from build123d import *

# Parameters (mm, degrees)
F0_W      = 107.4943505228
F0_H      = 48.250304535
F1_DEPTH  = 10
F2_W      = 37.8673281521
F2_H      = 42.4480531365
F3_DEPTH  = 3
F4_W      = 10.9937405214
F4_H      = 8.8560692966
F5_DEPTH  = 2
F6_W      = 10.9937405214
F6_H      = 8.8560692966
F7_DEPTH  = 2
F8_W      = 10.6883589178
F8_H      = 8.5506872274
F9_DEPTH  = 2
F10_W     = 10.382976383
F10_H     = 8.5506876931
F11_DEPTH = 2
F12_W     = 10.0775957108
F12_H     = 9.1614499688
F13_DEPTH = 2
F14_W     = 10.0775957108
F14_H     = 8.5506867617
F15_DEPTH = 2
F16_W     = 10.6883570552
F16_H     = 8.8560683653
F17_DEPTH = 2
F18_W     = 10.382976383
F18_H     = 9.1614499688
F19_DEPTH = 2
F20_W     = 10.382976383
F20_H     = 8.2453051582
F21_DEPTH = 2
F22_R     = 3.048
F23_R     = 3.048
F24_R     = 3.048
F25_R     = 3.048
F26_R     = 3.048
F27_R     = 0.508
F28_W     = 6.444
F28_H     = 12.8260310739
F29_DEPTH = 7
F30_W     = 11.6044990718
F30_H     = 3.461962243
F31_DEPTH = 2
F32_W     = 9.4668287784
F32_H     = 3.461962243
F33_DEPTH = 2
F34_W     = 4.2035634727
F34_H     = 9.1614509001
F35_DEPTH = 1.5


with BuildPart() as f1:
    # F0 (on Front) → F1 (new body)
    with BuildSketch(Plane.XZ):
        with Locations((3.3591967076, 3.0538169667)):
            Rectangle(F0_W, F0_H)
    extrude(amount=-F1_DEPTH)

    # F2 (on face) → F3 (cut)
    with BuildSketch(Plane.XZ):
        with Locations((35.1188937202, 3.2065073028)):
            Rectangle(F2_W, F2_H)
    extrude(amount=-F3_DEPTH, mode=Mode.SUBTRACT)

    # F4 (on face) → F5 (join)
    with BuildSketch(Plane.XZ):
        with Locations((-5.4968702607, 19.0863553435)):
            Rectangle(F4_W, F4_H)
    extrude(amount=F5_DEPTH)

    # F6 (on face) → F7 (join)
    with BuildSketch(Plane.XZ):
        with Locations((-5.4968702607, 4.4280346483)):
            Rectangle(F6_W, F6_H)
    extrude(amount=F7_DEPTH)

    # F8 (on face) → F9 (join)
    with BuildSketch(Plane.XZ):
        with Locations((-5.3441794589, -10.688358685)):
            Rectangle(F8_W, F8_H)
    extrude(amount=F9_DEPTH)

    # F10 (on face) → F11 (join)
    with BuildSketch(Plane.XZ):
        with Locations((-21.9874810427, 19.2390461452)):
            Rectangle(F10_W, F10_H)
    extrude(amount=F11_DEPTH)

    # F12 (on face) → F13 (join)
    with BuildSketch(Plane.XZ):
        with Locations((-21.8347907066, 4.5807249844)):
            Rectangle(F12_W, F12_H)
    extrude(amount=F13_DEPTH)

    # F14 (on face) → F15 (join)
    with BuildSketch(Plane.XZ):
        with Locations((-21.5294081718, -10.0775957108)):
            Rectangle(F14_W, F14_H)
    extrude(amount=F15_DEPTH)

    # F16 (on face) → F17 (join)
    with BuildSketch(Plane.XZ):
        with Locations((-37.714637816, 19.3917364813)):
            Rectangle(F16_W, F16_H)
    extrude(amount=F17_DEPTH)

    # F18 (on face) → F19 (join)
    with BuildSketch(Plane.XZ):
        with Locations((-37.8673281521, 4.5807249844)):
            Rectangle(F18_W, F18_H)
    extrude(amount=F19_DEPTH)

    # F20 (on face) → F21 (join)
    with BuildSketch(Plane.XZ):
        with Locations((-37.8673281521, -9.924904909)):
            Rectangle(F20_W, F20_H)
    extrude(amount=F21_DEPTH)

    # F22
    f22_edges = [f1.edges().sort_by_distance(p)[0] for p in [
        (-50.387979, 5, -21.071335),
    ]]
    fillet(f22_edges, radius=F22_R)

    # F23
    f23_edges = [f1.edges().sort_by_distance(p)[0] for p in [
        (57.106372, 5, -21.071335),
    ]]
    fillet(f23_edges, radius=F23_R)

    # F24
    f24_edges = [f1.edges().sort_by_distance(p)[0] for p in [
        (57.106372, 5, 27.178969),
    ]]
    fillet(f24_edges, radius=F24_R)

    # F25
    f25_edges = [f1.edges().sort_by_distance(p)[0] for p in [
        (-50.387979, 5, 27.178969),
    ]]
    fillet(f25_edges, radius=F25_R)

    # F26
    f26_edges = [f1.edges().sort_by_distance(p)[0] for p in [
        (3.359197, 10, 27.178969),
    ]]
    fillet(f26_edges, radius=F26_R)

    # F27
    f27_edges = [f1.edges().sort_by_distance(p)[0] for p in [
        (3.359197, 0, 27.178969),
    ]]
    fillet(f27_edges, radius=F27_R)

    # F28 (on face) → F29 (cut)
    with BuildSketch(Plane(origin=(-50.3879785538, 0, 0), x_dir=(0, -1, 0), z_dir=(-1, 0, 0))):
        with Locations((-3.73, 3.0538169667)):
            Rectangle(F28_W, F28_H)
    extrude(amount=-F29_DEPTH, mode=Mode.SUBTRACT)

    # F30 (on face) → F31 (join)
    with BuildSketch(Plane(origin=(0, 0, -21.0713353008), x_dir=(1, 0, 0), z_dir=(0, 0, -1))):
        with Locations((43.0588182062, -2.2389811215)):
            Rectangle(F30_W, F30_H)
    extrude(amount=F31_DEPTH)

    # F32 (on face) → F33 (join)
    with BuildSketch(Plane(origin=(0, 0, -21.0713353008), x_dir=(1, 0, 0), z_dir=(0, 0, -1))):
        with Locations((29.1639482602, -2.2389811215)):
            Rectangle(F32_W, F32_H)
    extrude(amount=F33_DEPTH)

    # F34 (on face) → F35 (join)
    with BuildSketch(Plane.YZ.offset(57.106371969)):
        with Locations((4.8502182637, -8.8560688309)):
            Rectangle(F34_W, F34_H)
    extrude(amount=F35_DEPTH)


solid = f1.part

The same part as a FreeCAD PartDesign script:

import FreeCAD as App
import Part
import Sketcher
Q = App.Units.Quantity


def edges_at(feature, points):
    """Names of the edges that pass closest to the given points."""
    edges = feature.Shape.Edges
    near = lambda p: min(range(len(edges)), key=lambda i: edges[i].distToShape(Part.Vertex(*p))[0])
    return sorted({f"Edge{near(p) + 1}" for p in points})


def add_polygon(sketch, points):
    """Adds a closed chain of lines whose ends are joined by coincident constraints."""
    first, n = sketch.GeometryCount, len(points)
    for a, b in zip(points, points[1:] + points[:1]):
        sketch.addGeometry(Part.LineSegment(App.Vector(*a, 0), App.Vector(*b, 0)), False)
    for i in range(n):
        sketch.addConstraint(Sketcher.Constraint("Coincident", first + i, 2, first + (i + 1) % n, 1))

doc = App.newDocument("Part")
body = doc.addObject("PartDesign::Body", "Body")

# Sketch on XZ plane
sketch1 = doc.addObject("Sketcher::SketchObject", "Sketch")
body.addObject(sketch1)
sketch1.AttachmentSupport = (doc.XZ_Plane, [""])
sketch1.MapMode = "FlatFace"
add_polygon(sketch1, [(-50, 27), (-50, -21), (57, -21), (57, 27)])  # lines 0-3
sketch1.addConstraint([
    Sketcher.Constraint("Vertical", 0),
    Sketcher.Constraint("Horizontal", 1),
    Sketcher.Constraint("Vertical", 2),
    Sketcher.Constraint("Horizontal", 3),
    Sketcher.Constraint("DistanceX", 1, 1, 1, 2, Q("107.494351 mm")),
    Sketcher.Constraint("DistanceY", 0, 2, 0, 1, Q("48.250305 mm")),
    Sketcher.Constraint("DistanceX", 0, 2, -1, 1, Q("50.387979 mm")),
    Sketcher.Constraint("DistanceY", -1, 1, 2, 2, Q("27.178969 mm")),
])
pad1 = doc.addObject("PartDesign::Pad", "Pad")
body.addObject(pad1)
pad1.Profile = sketch1
pad1.Length = 10
pad1.Reversed = True

# Sketch on XZ plane
sketch2 = doc.addObject("Sketcher::SketchObject", "Sketch001")
body.addObject(sketch2)
sketch2.AttachmentSupport = (doc.XZ_Plane, [""])
sketch2.MapMode = "FlatFace"
add_polygon(sketch2, [(16, 24), (16, -18), (54, -18), (54, 24)])  # lines 0-3
sketch2.addConstraint([
    Sketcher.Constraint("Vertical", 0),
    Sketcher.Constraint("Horizontal", 1),
    Sketcher.Constraint("Vertical", 2),
    Sketcher.Constraint("Horizontal", 3),
    Sketcher.Constraint("DistanceX", 1, 1, 1, 2, Q("37.867328 mm")),
    Sketcher.Constraint("DistanceY", 0, 2, 0, 1, Q("42.448053 mm")),
    Sketcher.Constraint("DistanceX", -1, 1, 0, 2, Q("16.18523 mm")),
    Sketcher.Constraint("DistanceY", 0, 2, -1, 1, Q("18.017519 mm")),
])
pocket1 = doc.addObject("PartDesign::Pocket", "Pocket")
body.addObject(pocket1)
pocket1.Profile = sketch2
pocket1.Length = 3

# Sketch on XZ plane
sketch3 = doc.addObject("Sketcher::SketchObject", "Sketch002")
body.addObject(sketch3)
sketch3.AttachmentSupport = (doc.XZ_Plane, [""])
sketch3.MapMode = "FlatFace"
add_polygon(sketch3, [(-11, 24), (-11, 15), (0, 15), (0, 24)])  # lines 0-3
sketch3.addConstraint([
    Sketcher.Constraint("Vertical", 0),
    Sketcher.Constraint("Horizontal", 1),
    Sketcher.Constraint("Vertical", 2),
    Sketcher.Constraint("Horizontal", 3),
    Sketcher.Constraint("PointOnObject", 1, 2, -2),
    Sketcher.Constraint("DistanceX", 1, 1, 1, 2, Q("10.993741 mm")),
    Sketcher.Constraint("DistanceY", 0, 2, 0, 1, Q("8.856069 mm")),
    Sketcher.Constraint("DistanceY", -1, 1, 0, 2, Q("14.658321 mm")),
])
pad2 = doc.addObject("PartDesign::Pad", "Pad001")
body.addObject(pad2)
pad2.Profile = sketch3
pad2.Length = 2

# Sketch on XZ plane
sketch4 = doc.addObject("Sketcher::SketchObject", "Sketch003")
body.addObject(sketch4)
sketch4.AttachmentSupport = (doc.XZ_Plane, [""])
sketch4.MapMode = "FlatFace"
add_polygon(sketch4, [(-11, 9), (-11, 0), (0, 0), (0, 9)])  # lines 0-3
sketch4.addConstraint([
    Sketcher.Constraint("Vertical", 0),
    Sketcher.Constraint("Horizontal", 1),
    Sketcher.Constraint("Vertical", 2),
    Sketcher.Constraint("Horizontal", 3),
    Sketcher.Constraint("Coincident", 1, 2, -1, 1),
    Sketcher.Constraint("DistanceX", 1, 1, 1, 2, Q("10.993741 mm")),
    Sketcher.Constraint("DistanceY", 0, 2, 0, 1, Q("8.856069 mm")),
])
pad3 = doc.addObject("PartDesign::Pad", "Pad002")
body.addObject(pad3)
pad3.Profile = sketch4
pad3.Length = 2

# Sketch on XZ plane
sketch5 = doc.addObject("Sketcher::SketchObject", "Sketch004")
body.addObject(sketch5)
sketch5.AttachmentSupport = (doc.XZ_Plane, [""])
sketch5.MapMode = "FlatFace"
add_polygon(sketch5, [(-11, -6), (-11, -15), (0, -15), (0, -6)])  # lines 0-3
sketch5.addConstraint([
    Sketcher.Constraint("Vertical", 0),
    Sketcher.Constraint("Horizontal", 1),
    Sketcher.Constraint("Vertical", 2),
    Sketcher.Constraint("Horizontal", 3),
    Sketcher.Constraint("PointOnObject", 1, 2, -2),
    Sketcher.Constraint("DistanceX", 1, 1, 1, 2, Q("10.688359 mm")),
    Sketcher.Constraint("DistanceY", 0, 2, 0, 1, Q("8.550687 mm")),
    Sketcher.Constraint("DistanceY", 0, 2, -1, 1, Q("14.963702 mm")),
])
pad4 = doc.addObject("PartDesign::Pad", "Pad003")
body.addObject(pad4)
pad4.Profile = sketch5
pad4.Length = 2

# Sketch on XZ plane
sketch6 = doc.addObject("Sketcher::SketchObject", "Sketch005")
body.addObject(sketch6)
sketch6.AttachmentSupport = (doc.XZ_Plane, [""])
sketch6.MapMode = "FlatFace"
add_polygon(sketch6, [(-27, 24), (-27, 15), (-17, 15), (-17, 24)])  # lines 0-3
sketch6.addConstraint([
    Sketcher.Constraint("Vertical", 0),
    Sketcher.Constraint("Horizontal", 1),
    Sketcher.Constraint("Vertical", 2),
    Sketcher.Constraint("Horizontal", 3),
    Sketcher.Constraint("DistanceX", 1, 1, 1, 2, Q("10.382976 mm")),
    Sketcher.Constraint("DistanceY", 0, 2, 0, 1, Q("8.550688 mm")),
    Sketcher.Constraint("DistanceX", 0, 2, -1, 1, Q("27.178969 mm")),
    Sketcher.Constraint("DistanceY", -1, 1, 2, 2, Q("23.51439 mm")),
])
pad5 = doc.addObject("PartDesign::Pad", "Pad004")
body.addObject(pad5)
pad5.Profile = sketch6
pad5.Length = 2

# Sketch on XZ plane
sketch7 = doc.addObject("Sketcher::SketchObject", "Sketch006")
body.addObject(sketch7)
sketch7.AttachmentSupport = (doc.XZ_Plane, [""])
sketch7.MapMode = "FlatFace"
add_polygon(sketch7, [(-27, 9), (-27, 0), (-17, 0), (-17, 9)])  # lines 0-3
sketch7.addConstraint([
    Sketcher.Constraint("Vertical", 0),
    Sketcher.Constraint("Horizontal", 1),
    Sketcher.Constraint("Vertical", 2),
    Sketcher.Constraint("Horizontal", 3),
    Sketcher.Constraint("PointOnObject", 0, 2, -1),
    Sketcher.Constraint("DistanceY", 0, 2, 0, 1, Q("9.16145 mm")),
    Sketcher.Constraint("DistanceX", 1, 1, 1, 2, Q("10.077596 mm")),
    Sketcher.Constraint("DistanceX", 0, 2, -1, 1, Q("26.873589 mm")),
])
pad6 = doc.addObject("PartDesign::Pad", "Pad005")
body.addObject(pad6)
pad6.Profile = sketch7
pad6.Length = 2

# Sketch on XZ plane
sketch8 = doc.addObject("Sketcher::SketchObject", "Sketch007")
body.addObject(sketch8)
sketch8.AttachmentSupport = (doc.XZ_Plane, [""])
sketch8.MapMode = "FlatFace"
add_polygon(sketch8, [(-27, -6), (-27, -14), (-16, -14), (-16, -6)])  # lines 0-3
sketch8.addConstraint([
    Sketcher.Constraint("Vertical", 0),
    Sketcher.Constraint("Horizontal", 1),
    Sketcher.Constraint("Vertical", 2),
    Sketcher.Constraint("Horizontal", 3),
    Sketcher.Constraint("DistanceX", 1, 1, 1, 2, Q("10.077596 mm")),
    Sketcher.Constraint("DistanceY", 0, 2, 0, 1, Q("8.550687 mm")),
    Sketcher.Constraint("DistanceY", 0, 2, -1, 1, Q("14.352939 mm")),
    Sketcher.Constraint("DistanceX", 1, 2, -1, 1, Q("16.49061 mm")),
])
pad7 = doc.addObject("PartDesign::Pad", "Pad006")
body.addObject(pad7)
pad7.Profile = sketch8
pad7.Length = 2

# Sketch on XZ plane
sketch9 = doc.addObject("Sketcher::SketchObject", "Sketch008")
body.addObject(sketch9)
sketch9.AttachmentSupport = (doc.XZ_Plane, [""])
sketch9.MapMode = "FlatFace"
add_polygon(sketch9, [(-43, 24), (-43, 15), (-32, 15), (-32, 24)])  # lines 0-3
sketch9.addConstraint([
    Sketcher.Constraint("Vertical", 0),
    Sketcher.Constraint("Horizontal", 1),
    Sketcher.Constraint("Vertical", 2),
    Sketcher.Constraint("Horizontal", 3),
    Sketcher.Constraint("DistanceY", 0, 2, 0, 1, Q("8.856068 mm")),
    Sketcher.Constraint("DistanceX", 1, 1, 1, 2, Q("10.688357 mm")),
    Sketcher.Constraint("DistanceX", 1, 2, -1, 1, Q("32.370459 mm")),
    Sketcher.Constraint("DistanceY", -1, 1, 2, 2, Q("23.819771 mm")),
])
pad8 = doc.addObject("PartDesign::Pad", "Pad007")
body.addObject(pad8)
pad8.Profile = sketch9
pad8.Length = 2

# Sketch on XZ plane
sketch10 = doc.addObject("Sketcher::SketchObject", "Sketch009")
body.addObject(sketch10)
sketch10.AttachmentSupport = (doc.XZ_Plane, [""])
sketch10.MapMode = "FlatFace"
add_polygon(sketch10, [(-43, 9), (-43, 0), (-33, 0), (-33, 9)])  # lines 0-3
sketch10.addConstraint([
    Sketcher.Constraint("Vertical", 0),
    Sketcher.Constraint("Horizontal", 1),
    Sketcher.Constraint("Vertical", 2),
    Sketcher.Constraint("Horizontal", 3),
    Sketcher.Constraint("PointOnObject", 0, 2, -1),
    Sketcher.Constraint("DistanceY", 0, 2, 0, 1, Q("9.16145 mm")),
    Sketcher.Constraint("DistanceX", 1, 1, 1, 2, Q("10.382976 mm")),
    Sketcher.Constraint("DistanceX", 1, 2, -1, 1, Q("32.67584 mm")),
])
pad9 = doc.addObject("PartDesign::Pad", "Pad008")
body.addObject(pad9)
pad9.Profile = sketch10
pad9.Length = 2

# Sketch on XZ plane
sketch11 = doc.addObject("Sketcher::SketchObject", "Sketch010")
body.addObject(sketch11)
sketch11.AttachmentSupport = (doc.XZ_Plane, [""])
sketch11.MapMode = "FlatFace"
add_polygon(sketch11, [(-43, -6), (-43, -14), (-33, -14), (-33, -6)])  # lines 0-3
sketch11.addConstraint([
    Sketcher.Constraint("Vertical", 0),
    Sketcher.Constraint("Horizontal", 1),
    Sketcher.Constraint("Vertical", 2),
    Sketcher.Constraint("Horizontal", 3),
    Sketcher.Constraint("DistanceX", 1, 1, 1, 2, Q("10.382976 mm")),
    Sketcher.Constraint("DistanceY", 0, 2, 0, 1, Q("8.245305 mm")),
    Sketcher.Constraint("DistanceX", 1, 2, -1, 1, Q("32.67584 mm")),
    Sketcher.Constraint("DistanceY", 0, 2, -1, 1, Q("14.047557 mm")),
])
pad10 = doc.addObject("PartDesign::Pad", "Pad009")
body.addObject(pad10)
pad10.Profile = sketch11
pad10.Length = 2
doc.recompute()

fillet = doc.addObject("PartDesign::Fillet", "Fillet")
body.addObject(fillet)
fillet.Base = (pad10, edges_at(pad10, [(-50.388, 5, -21.071)]))
fillet.Radius = 3.048
doc.recompute()

fillet2 = doc.addObject("PartDesign::Fillet", "Fillet001")
body.addObject(fillet2)
fillet2.Base = (fillet, edges_at(fillet, [(57.106, 5, -21.071)]))
fillet2.Radius = 3.048
doc.recompute()

fillet3 = doc.addObject("PartDesign::Fillet", "Fillet002")
body.addObject(fillet3)
fillet3.Base = (fillet2, edges_at(fillet2, [(57.106, 5, 27.179)]))
fillet3.Radius = 3.048
doc.recompute()

fillet4 = doc.addObject("PartDesign::Fillet", "Fillet003")
body.addObject(fillet4)
fillet4.Base = (fillet3, edges_at(fillet3, [(-50.388, 5, 27.179)]))
fillet4.Radius = 3.048
doc.recompute()

fillet5 = doc.addObject("PartDesign::Fillet", "Fillet004")
body.addObject(fillet5)
fillet5.Base = (fillet4, edges_at(fillet4, [(3.359, 10, 27.179)]))
fillet5.Radius = 3.048
doc.recompute()

fillet6 = doc.addObject("PartDesign::Fillet", "Fillet005")
body.addObject(fillet6)
fillet6.Base = (fillet5, edges_at(fillet5, [(3.359, 0, 27.179)]))
fillet6.Radius = 0.508

# Sketch on YZ plane
sketch12 = doc.addObject("Sketcher::SketchObject", "Sketch011")
body.addObject(sketch12)
sketch12.AttachmentSupport = (doc.YZ_Plane, [""])
sketch12.MapMode = "FlatFace"
sketch12.AttachmentOffset = App.Placement(App.Vector(0, 0, -50.387979), App.Rotation())
add_polygon(sketch12, [(7, 9), (7, -3), (1, -3), (1, 9)])  # lines 0-3
sketch12.addConstraint([
    Sketcher.Constraint("Vertical", 0),
    Sketcher.Constraint("Horizontal", 1),
    Sketcher.Constraint("Vertical", 2),
    Sketcher.Constraint("Horizontal", 3),
    Sketcher.Constraint("DistanceX", 1, 2, 1, 1, Q("6.444 mm")),
    Sketcher.Constraint("DistanceX", -1, 1, 0, 2, Q("6.952 mm")),
    Sketcher.Constraint("DistanceY", 0, 2, 0, 1, Q("12.826031 mm")),
    Sketcher.Constraint("DistanceY", 0, 2, -1, 1, Q("3.359199 mm")),
])
pocket2 = doc.addObject("PartDesign::Pocket", "Pocket001")
body.addObject(pocket2)
pocket2.Profile = sketch12
pocket2.Length = 7
pocket2.Reversed = True

# Sketch on XY plane
sketch13 = doc.addObject("Sketcher::SketchObject", "Sketch012")
body.addObject(sketch13)
sketch13.AttachmentSupport = (doc.XY_Plane, [""])
sketch13.MapMode = "FlatFace"
sketch13.AttachmentOffset = App.Placement(App.Vector(0, 0, -21.071335), App.Rotation())
add_polygon(sketch13, [(37.3, 0.5), (37.3, 4), (48.9, 4), (48.9, 0.5)])  # lines 0-3
sketch13.addConstraint([
    Sketcher.Constraint("Vertical", 0),
    Sketcher.Constraint("Horizontal", 1),
    Sketcher.Constraint("Vertical", 2),
    Sketcher.Constraint("Horizontal", 3),
    Sketcher.Constraint("DistanceX", 1, 1, 1, 2, Q("11.604499 mm")),
    Sketcher.Constraint("DistanceY", -1, 1, 2, 2, Q("0.508 mm")),
    Sketcher.Constraint("DistanceY", 0, 1, 0, 2, Q("3.461962 mm")),
    Sketcher.Constraint("DistanceX", -1, 1, 0, 2, Q("37.256569 mm")),
])
pad11 = doc.addObject("PartDesign::Pad", "Pad010")
body.addObject(pad11)
pad11.Profile = sketch13
pad11.Length = 2
pad11.Reversed = True

# Sketch on XY plane
sketch14 = doc.addObject("Sketcher::SketchObject", "Sketch013")
body.addObject(sketch14)
sketch14.AttachmentSupport = (doc.XY_Plane, [""])
sketch14.MapMode = "FlatFace"
sketch14.AttachmentOffset = App.Placement(App.Vector(0, 0, -21.071335), App.Rotation())
add_polygon(sketch14, [(24.4, 0.5), (24.4, 4), (33.9, 4), (33.9, 0.5)])  # lines 0-3
sketch14.addConstraint([
    Sketcher.Constraint("Vertical", 0),
    Sketcher.Constraint("Horizontal", 1),
    Sketcher.Constraint("Vertical", 2),
    Sketcher.Constraint("Horizontal", 3),
    Sketcher.Constraint("DistanceY", -1, 1, 2, 2, Q("0.508 mm")),
    Sketcher.Constraint("DistanceX", 1, 1, 1, 2, Q("9.466829 mm")),
    Sketcher.Constraint("DistanceY", 0, 1, 0, 2, Q("3.461962 mm")),
    Sketcher.Constraint("DistanceX", -1, 1, 0, 2, Q("24.430534 mm")),
])
pad12 = doc.addObject("PartDesign::Pad", "Pad011")
body.addObject(pad12)
pad12.Profile = sketch14
pad12.Length = 2
pad12.Reversed = True

# Sketch on YZ plane
sketch15 = doc.addObject("Sketcher::SketchObject", "Sketch014")
body.addObject(sketch15)
sketch15.AttachmentSupport = (doc.YZ_Plane, [""])
sketch15.MapMode = "FlatFace"
sketch15.AttachmentOffset = App.Placement(App.Vector(0, 0, 57.106372), App.Rotation())
add_polygon(sketch15, [(2.7, -4.3), (2.7, -13.4), (7, -13.4), (7, -4.3)])  # lines 0-3
sketch15.addConstraint([
    Sketcher.Constraint("Vertical", 0),
    Sketcher.Constraint("Horizontal", 1),
    Sketcher.Constraint("Vertical", 2),
    Sketcher.Constraint("Horizontal", 3),
    Sketcher.Constraint("DistanceX", -1, 1, 1, 2, Q("6.952 mm")),
    Sketcher.Constraint("DistanceY", 0, 2, 0, 1, Q("9.161451 mm")),
    Sketcher.Constraint("DistanceX", 1, 1, 1, 2, Q("4.203563 mm")),
    Sketcher.Constraint("DistanceY", 0, 2, -1, 1, Q("13.436794 mm")),
])
pad13 = doc.addObject("PartDesign::Pad", "Pad012")
body.addObject(pad13)
pad13.Profile = sketch15
pad13.Length = 1.5

doc.recompute()
